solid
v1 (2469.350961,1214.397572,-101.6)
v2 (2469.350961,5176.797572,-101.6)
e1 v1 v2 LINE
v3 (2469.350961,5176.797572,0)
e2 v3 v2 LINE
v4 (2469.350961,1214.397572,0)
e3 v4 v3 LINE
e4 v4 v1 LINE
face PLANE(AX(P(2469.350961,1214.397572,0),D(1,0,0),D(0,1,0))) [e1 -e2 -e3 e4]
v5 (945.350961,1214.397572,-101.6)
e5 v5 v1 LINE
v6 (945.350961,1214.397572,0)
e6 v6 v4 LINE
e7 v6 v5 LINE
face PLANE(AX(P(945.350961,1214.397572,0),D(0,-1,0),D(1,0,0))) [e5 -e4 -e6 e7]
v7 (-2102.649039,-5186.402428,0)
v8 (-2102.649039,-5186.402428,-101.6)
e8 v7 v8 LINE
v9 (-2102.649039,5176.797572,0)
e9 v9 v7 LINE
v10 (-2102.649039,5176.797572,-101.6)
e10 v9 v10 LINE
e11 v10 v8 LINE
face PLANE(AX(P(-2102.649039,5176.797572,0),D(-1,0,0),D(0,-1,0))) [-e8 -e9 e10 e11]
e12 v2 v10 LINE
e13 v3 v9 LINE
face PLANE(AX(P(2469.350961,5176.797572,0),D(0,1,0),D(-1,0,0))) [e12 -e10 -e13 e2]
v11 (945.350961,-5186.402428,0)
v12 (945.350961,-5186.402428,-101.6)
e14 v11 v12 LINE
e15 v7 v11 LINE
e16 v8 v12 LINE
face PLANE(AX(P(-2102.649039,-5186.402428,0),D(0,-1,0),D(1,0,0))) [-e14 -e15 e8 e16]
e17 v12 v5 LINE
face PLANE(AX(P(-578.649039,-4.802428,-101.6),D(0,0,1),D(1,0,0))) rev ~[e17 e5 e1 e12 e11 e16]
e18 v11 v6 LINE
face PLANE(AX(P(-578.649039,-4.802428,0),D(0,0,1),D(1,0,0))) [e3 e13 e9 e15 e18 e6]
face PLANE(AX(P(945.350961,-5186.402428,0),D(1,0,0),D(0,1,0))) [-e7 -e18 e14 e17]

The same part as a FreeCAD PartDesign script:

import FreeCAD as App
import Part
import Sketcher

V = App.Vector
Q = App.Units.Quantity


def add_polygon(sketch, points):
    """Adds a closed chain of lines whose ends are joined by coincident constraints."""
    first, n = sketch.GeometryCount, len(points)
    for a, b in zip(points, points[1:] + points[:1]):
        sketch.addGeometry(Part.LineSegment(App.Vector(*a, 0), App.Vector(*b, 0)), False)
    for i in range(n):
        sketch.addConstraint(Sketcher.Constraint("Coincident", first + i, 2, first + (i + 1) % n, 1))

doc = App.newDocument("Part")
body = doc.addObject("PartDesign::Body", "Body")

# Sketch on XY plane
sketch1 = doc.addObject("Sketcher::SketchObject", "Sketch")
body.addObject(sketch1)
sketch1.AttachmentSupport = (doc.XY_Plane, [""])
sketch1.MapMode = "FlatFace"
add_polygon(sketch1, [(-2102.649039, 5176.797572), (-2102.649039, -5186.402428), (945.350961, -5186.402428), (945.350961, 1214.397572), (2469.350961, 1214.397572), (2469.350961, 5176.797572)])  # lines 0-5
sketch1.addConstraint(Sketcher.Constraint("Vertical", 0))
sketch1.addConstraint(Sketcher.Constraint("Horizontal", 1))
sketch1.addConstraint(Sketcher.Constraint("Vertical", 2))
sketch1.addConstraint(Sketcher.Constraint("Horizontal", 3))
sketch1.addConstraint(Sketcher.Constraint("Vertical", 4))
sketch1.addConstraint(Sketcher.Constraint("Horizontal", 5))
sketch1.addConstraint(Sketcher.Constraint("DistanceX", 1, 1, 1, 2, Q("120 in")))
sketch1.addConstraint(Sketcher.Constraint("DistanceX", 3, 1, 3, 2, Q("60 in")))
sketch1.addConstraint(Sketcher.Constraint("DistanceY", 0, 2, 0, 1, Q("408 in")))
sketch1.addConstraint(Sketcher.Constraint("DistanceY", 2, 1, 2, 2, Q("252 in")))
sketch1.addConstraint(Sketcher.Constraint("DistanceX", 0, 2, -1, 1, 2102.649039))
sketch1.addConstraint(Sketcher.Constraint("DistanceY", 0, 2, -1, 1, 5186.402428))
pad1 = doc.addObject("PartDesign::Pad", "Pad")
body.addObject(pad1)
pad1.Profile = sketch1
pad1.Length = Q("4 in")
pad1.Reversed = True

doc.recompute()
